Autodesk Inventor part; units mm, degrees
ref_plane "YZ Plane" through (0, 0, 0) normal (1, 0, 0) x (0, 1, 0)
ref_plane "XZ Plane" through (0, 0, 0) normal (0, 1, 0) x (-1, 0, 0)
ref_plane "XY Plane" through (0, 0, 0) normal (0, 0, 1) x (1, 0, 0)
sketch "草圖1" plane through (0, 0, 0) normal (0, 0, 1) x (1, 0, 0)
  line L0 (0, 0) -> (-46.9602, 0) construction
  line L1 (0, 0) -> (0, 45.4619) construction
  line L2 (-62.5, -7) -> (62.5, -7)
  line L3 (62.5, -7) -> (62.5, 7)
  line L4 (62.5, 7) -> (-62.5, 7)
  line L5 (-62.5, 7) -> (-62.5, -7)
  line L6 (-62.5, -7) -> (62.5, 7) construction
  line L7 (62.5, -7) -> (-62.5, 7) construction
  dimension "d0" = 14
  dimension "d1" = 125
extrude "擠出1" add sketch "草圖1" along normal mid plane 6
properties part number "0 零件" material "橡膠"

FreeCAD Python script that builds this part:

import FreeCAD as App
import Part
import Sketcher
from FreeCAD import Vector
Q = App.Units.Quantity


def add_polygon(sketch, points):
    """Adds a closed chain of lines whose ends are joined by coincident constraints."""
    first, n = sketch.GeometryCount, len(points)
    for a, b in zip(points, points[1:] + points[:1]):
        sketch.addGeometry(Part.LineSegment(App.Vector(*a, 0), App.Vector(*b, 0)), False)
    for i in range(n):
        sketch.addConstraint(Sketcher.Constraint("Coincident", first + i, 2, first + (i + 1) % n, 1))

doc = App.newDocument("Part")
body = doc.addObject("PartDesign::Body", "Body")

# Sketch on XY plane
sketch1 = doc.addObject("Sketcher::SketchObject", "Sketch")
body.addObject(sketch1)
sketch1.AttachmentSupport = (doc.XY_Plane, [""])
sketch1.MapMode = "FlatFace"
add_polygon(sketch1, [(-62.5, 7), (-62.5, -7), (62.5, -7), (62.5, 7)])  # lines 0-3
sketch1.addConstraint([
    Sketcher.Constraint("Vertical", 0),
    Sketcher.Constraint("Horizontal", 1),
    Sketcher.Constraint("Vertical", 2),
    Sketcher.Constraint("Horizontal", 3),
    Sketcher.Constraint("Symmetric", 0, 2, 2, 2, -1, 1),
    Sketcher.Constraint("DistanceX", 1, 1, 1, 2, Q("125 mm")),
    Sketcher.Constraint("DistanceY", 0, 2, 0, 1, Q("14 mm")),
])
pad1 = doc.addObject("PartDesign::Pad", "Pad")
body.addObject(pad1)
pad1.Profile = sketch1
pad1.Length = 6
pad1.Midplane = True

doc.recompute()
